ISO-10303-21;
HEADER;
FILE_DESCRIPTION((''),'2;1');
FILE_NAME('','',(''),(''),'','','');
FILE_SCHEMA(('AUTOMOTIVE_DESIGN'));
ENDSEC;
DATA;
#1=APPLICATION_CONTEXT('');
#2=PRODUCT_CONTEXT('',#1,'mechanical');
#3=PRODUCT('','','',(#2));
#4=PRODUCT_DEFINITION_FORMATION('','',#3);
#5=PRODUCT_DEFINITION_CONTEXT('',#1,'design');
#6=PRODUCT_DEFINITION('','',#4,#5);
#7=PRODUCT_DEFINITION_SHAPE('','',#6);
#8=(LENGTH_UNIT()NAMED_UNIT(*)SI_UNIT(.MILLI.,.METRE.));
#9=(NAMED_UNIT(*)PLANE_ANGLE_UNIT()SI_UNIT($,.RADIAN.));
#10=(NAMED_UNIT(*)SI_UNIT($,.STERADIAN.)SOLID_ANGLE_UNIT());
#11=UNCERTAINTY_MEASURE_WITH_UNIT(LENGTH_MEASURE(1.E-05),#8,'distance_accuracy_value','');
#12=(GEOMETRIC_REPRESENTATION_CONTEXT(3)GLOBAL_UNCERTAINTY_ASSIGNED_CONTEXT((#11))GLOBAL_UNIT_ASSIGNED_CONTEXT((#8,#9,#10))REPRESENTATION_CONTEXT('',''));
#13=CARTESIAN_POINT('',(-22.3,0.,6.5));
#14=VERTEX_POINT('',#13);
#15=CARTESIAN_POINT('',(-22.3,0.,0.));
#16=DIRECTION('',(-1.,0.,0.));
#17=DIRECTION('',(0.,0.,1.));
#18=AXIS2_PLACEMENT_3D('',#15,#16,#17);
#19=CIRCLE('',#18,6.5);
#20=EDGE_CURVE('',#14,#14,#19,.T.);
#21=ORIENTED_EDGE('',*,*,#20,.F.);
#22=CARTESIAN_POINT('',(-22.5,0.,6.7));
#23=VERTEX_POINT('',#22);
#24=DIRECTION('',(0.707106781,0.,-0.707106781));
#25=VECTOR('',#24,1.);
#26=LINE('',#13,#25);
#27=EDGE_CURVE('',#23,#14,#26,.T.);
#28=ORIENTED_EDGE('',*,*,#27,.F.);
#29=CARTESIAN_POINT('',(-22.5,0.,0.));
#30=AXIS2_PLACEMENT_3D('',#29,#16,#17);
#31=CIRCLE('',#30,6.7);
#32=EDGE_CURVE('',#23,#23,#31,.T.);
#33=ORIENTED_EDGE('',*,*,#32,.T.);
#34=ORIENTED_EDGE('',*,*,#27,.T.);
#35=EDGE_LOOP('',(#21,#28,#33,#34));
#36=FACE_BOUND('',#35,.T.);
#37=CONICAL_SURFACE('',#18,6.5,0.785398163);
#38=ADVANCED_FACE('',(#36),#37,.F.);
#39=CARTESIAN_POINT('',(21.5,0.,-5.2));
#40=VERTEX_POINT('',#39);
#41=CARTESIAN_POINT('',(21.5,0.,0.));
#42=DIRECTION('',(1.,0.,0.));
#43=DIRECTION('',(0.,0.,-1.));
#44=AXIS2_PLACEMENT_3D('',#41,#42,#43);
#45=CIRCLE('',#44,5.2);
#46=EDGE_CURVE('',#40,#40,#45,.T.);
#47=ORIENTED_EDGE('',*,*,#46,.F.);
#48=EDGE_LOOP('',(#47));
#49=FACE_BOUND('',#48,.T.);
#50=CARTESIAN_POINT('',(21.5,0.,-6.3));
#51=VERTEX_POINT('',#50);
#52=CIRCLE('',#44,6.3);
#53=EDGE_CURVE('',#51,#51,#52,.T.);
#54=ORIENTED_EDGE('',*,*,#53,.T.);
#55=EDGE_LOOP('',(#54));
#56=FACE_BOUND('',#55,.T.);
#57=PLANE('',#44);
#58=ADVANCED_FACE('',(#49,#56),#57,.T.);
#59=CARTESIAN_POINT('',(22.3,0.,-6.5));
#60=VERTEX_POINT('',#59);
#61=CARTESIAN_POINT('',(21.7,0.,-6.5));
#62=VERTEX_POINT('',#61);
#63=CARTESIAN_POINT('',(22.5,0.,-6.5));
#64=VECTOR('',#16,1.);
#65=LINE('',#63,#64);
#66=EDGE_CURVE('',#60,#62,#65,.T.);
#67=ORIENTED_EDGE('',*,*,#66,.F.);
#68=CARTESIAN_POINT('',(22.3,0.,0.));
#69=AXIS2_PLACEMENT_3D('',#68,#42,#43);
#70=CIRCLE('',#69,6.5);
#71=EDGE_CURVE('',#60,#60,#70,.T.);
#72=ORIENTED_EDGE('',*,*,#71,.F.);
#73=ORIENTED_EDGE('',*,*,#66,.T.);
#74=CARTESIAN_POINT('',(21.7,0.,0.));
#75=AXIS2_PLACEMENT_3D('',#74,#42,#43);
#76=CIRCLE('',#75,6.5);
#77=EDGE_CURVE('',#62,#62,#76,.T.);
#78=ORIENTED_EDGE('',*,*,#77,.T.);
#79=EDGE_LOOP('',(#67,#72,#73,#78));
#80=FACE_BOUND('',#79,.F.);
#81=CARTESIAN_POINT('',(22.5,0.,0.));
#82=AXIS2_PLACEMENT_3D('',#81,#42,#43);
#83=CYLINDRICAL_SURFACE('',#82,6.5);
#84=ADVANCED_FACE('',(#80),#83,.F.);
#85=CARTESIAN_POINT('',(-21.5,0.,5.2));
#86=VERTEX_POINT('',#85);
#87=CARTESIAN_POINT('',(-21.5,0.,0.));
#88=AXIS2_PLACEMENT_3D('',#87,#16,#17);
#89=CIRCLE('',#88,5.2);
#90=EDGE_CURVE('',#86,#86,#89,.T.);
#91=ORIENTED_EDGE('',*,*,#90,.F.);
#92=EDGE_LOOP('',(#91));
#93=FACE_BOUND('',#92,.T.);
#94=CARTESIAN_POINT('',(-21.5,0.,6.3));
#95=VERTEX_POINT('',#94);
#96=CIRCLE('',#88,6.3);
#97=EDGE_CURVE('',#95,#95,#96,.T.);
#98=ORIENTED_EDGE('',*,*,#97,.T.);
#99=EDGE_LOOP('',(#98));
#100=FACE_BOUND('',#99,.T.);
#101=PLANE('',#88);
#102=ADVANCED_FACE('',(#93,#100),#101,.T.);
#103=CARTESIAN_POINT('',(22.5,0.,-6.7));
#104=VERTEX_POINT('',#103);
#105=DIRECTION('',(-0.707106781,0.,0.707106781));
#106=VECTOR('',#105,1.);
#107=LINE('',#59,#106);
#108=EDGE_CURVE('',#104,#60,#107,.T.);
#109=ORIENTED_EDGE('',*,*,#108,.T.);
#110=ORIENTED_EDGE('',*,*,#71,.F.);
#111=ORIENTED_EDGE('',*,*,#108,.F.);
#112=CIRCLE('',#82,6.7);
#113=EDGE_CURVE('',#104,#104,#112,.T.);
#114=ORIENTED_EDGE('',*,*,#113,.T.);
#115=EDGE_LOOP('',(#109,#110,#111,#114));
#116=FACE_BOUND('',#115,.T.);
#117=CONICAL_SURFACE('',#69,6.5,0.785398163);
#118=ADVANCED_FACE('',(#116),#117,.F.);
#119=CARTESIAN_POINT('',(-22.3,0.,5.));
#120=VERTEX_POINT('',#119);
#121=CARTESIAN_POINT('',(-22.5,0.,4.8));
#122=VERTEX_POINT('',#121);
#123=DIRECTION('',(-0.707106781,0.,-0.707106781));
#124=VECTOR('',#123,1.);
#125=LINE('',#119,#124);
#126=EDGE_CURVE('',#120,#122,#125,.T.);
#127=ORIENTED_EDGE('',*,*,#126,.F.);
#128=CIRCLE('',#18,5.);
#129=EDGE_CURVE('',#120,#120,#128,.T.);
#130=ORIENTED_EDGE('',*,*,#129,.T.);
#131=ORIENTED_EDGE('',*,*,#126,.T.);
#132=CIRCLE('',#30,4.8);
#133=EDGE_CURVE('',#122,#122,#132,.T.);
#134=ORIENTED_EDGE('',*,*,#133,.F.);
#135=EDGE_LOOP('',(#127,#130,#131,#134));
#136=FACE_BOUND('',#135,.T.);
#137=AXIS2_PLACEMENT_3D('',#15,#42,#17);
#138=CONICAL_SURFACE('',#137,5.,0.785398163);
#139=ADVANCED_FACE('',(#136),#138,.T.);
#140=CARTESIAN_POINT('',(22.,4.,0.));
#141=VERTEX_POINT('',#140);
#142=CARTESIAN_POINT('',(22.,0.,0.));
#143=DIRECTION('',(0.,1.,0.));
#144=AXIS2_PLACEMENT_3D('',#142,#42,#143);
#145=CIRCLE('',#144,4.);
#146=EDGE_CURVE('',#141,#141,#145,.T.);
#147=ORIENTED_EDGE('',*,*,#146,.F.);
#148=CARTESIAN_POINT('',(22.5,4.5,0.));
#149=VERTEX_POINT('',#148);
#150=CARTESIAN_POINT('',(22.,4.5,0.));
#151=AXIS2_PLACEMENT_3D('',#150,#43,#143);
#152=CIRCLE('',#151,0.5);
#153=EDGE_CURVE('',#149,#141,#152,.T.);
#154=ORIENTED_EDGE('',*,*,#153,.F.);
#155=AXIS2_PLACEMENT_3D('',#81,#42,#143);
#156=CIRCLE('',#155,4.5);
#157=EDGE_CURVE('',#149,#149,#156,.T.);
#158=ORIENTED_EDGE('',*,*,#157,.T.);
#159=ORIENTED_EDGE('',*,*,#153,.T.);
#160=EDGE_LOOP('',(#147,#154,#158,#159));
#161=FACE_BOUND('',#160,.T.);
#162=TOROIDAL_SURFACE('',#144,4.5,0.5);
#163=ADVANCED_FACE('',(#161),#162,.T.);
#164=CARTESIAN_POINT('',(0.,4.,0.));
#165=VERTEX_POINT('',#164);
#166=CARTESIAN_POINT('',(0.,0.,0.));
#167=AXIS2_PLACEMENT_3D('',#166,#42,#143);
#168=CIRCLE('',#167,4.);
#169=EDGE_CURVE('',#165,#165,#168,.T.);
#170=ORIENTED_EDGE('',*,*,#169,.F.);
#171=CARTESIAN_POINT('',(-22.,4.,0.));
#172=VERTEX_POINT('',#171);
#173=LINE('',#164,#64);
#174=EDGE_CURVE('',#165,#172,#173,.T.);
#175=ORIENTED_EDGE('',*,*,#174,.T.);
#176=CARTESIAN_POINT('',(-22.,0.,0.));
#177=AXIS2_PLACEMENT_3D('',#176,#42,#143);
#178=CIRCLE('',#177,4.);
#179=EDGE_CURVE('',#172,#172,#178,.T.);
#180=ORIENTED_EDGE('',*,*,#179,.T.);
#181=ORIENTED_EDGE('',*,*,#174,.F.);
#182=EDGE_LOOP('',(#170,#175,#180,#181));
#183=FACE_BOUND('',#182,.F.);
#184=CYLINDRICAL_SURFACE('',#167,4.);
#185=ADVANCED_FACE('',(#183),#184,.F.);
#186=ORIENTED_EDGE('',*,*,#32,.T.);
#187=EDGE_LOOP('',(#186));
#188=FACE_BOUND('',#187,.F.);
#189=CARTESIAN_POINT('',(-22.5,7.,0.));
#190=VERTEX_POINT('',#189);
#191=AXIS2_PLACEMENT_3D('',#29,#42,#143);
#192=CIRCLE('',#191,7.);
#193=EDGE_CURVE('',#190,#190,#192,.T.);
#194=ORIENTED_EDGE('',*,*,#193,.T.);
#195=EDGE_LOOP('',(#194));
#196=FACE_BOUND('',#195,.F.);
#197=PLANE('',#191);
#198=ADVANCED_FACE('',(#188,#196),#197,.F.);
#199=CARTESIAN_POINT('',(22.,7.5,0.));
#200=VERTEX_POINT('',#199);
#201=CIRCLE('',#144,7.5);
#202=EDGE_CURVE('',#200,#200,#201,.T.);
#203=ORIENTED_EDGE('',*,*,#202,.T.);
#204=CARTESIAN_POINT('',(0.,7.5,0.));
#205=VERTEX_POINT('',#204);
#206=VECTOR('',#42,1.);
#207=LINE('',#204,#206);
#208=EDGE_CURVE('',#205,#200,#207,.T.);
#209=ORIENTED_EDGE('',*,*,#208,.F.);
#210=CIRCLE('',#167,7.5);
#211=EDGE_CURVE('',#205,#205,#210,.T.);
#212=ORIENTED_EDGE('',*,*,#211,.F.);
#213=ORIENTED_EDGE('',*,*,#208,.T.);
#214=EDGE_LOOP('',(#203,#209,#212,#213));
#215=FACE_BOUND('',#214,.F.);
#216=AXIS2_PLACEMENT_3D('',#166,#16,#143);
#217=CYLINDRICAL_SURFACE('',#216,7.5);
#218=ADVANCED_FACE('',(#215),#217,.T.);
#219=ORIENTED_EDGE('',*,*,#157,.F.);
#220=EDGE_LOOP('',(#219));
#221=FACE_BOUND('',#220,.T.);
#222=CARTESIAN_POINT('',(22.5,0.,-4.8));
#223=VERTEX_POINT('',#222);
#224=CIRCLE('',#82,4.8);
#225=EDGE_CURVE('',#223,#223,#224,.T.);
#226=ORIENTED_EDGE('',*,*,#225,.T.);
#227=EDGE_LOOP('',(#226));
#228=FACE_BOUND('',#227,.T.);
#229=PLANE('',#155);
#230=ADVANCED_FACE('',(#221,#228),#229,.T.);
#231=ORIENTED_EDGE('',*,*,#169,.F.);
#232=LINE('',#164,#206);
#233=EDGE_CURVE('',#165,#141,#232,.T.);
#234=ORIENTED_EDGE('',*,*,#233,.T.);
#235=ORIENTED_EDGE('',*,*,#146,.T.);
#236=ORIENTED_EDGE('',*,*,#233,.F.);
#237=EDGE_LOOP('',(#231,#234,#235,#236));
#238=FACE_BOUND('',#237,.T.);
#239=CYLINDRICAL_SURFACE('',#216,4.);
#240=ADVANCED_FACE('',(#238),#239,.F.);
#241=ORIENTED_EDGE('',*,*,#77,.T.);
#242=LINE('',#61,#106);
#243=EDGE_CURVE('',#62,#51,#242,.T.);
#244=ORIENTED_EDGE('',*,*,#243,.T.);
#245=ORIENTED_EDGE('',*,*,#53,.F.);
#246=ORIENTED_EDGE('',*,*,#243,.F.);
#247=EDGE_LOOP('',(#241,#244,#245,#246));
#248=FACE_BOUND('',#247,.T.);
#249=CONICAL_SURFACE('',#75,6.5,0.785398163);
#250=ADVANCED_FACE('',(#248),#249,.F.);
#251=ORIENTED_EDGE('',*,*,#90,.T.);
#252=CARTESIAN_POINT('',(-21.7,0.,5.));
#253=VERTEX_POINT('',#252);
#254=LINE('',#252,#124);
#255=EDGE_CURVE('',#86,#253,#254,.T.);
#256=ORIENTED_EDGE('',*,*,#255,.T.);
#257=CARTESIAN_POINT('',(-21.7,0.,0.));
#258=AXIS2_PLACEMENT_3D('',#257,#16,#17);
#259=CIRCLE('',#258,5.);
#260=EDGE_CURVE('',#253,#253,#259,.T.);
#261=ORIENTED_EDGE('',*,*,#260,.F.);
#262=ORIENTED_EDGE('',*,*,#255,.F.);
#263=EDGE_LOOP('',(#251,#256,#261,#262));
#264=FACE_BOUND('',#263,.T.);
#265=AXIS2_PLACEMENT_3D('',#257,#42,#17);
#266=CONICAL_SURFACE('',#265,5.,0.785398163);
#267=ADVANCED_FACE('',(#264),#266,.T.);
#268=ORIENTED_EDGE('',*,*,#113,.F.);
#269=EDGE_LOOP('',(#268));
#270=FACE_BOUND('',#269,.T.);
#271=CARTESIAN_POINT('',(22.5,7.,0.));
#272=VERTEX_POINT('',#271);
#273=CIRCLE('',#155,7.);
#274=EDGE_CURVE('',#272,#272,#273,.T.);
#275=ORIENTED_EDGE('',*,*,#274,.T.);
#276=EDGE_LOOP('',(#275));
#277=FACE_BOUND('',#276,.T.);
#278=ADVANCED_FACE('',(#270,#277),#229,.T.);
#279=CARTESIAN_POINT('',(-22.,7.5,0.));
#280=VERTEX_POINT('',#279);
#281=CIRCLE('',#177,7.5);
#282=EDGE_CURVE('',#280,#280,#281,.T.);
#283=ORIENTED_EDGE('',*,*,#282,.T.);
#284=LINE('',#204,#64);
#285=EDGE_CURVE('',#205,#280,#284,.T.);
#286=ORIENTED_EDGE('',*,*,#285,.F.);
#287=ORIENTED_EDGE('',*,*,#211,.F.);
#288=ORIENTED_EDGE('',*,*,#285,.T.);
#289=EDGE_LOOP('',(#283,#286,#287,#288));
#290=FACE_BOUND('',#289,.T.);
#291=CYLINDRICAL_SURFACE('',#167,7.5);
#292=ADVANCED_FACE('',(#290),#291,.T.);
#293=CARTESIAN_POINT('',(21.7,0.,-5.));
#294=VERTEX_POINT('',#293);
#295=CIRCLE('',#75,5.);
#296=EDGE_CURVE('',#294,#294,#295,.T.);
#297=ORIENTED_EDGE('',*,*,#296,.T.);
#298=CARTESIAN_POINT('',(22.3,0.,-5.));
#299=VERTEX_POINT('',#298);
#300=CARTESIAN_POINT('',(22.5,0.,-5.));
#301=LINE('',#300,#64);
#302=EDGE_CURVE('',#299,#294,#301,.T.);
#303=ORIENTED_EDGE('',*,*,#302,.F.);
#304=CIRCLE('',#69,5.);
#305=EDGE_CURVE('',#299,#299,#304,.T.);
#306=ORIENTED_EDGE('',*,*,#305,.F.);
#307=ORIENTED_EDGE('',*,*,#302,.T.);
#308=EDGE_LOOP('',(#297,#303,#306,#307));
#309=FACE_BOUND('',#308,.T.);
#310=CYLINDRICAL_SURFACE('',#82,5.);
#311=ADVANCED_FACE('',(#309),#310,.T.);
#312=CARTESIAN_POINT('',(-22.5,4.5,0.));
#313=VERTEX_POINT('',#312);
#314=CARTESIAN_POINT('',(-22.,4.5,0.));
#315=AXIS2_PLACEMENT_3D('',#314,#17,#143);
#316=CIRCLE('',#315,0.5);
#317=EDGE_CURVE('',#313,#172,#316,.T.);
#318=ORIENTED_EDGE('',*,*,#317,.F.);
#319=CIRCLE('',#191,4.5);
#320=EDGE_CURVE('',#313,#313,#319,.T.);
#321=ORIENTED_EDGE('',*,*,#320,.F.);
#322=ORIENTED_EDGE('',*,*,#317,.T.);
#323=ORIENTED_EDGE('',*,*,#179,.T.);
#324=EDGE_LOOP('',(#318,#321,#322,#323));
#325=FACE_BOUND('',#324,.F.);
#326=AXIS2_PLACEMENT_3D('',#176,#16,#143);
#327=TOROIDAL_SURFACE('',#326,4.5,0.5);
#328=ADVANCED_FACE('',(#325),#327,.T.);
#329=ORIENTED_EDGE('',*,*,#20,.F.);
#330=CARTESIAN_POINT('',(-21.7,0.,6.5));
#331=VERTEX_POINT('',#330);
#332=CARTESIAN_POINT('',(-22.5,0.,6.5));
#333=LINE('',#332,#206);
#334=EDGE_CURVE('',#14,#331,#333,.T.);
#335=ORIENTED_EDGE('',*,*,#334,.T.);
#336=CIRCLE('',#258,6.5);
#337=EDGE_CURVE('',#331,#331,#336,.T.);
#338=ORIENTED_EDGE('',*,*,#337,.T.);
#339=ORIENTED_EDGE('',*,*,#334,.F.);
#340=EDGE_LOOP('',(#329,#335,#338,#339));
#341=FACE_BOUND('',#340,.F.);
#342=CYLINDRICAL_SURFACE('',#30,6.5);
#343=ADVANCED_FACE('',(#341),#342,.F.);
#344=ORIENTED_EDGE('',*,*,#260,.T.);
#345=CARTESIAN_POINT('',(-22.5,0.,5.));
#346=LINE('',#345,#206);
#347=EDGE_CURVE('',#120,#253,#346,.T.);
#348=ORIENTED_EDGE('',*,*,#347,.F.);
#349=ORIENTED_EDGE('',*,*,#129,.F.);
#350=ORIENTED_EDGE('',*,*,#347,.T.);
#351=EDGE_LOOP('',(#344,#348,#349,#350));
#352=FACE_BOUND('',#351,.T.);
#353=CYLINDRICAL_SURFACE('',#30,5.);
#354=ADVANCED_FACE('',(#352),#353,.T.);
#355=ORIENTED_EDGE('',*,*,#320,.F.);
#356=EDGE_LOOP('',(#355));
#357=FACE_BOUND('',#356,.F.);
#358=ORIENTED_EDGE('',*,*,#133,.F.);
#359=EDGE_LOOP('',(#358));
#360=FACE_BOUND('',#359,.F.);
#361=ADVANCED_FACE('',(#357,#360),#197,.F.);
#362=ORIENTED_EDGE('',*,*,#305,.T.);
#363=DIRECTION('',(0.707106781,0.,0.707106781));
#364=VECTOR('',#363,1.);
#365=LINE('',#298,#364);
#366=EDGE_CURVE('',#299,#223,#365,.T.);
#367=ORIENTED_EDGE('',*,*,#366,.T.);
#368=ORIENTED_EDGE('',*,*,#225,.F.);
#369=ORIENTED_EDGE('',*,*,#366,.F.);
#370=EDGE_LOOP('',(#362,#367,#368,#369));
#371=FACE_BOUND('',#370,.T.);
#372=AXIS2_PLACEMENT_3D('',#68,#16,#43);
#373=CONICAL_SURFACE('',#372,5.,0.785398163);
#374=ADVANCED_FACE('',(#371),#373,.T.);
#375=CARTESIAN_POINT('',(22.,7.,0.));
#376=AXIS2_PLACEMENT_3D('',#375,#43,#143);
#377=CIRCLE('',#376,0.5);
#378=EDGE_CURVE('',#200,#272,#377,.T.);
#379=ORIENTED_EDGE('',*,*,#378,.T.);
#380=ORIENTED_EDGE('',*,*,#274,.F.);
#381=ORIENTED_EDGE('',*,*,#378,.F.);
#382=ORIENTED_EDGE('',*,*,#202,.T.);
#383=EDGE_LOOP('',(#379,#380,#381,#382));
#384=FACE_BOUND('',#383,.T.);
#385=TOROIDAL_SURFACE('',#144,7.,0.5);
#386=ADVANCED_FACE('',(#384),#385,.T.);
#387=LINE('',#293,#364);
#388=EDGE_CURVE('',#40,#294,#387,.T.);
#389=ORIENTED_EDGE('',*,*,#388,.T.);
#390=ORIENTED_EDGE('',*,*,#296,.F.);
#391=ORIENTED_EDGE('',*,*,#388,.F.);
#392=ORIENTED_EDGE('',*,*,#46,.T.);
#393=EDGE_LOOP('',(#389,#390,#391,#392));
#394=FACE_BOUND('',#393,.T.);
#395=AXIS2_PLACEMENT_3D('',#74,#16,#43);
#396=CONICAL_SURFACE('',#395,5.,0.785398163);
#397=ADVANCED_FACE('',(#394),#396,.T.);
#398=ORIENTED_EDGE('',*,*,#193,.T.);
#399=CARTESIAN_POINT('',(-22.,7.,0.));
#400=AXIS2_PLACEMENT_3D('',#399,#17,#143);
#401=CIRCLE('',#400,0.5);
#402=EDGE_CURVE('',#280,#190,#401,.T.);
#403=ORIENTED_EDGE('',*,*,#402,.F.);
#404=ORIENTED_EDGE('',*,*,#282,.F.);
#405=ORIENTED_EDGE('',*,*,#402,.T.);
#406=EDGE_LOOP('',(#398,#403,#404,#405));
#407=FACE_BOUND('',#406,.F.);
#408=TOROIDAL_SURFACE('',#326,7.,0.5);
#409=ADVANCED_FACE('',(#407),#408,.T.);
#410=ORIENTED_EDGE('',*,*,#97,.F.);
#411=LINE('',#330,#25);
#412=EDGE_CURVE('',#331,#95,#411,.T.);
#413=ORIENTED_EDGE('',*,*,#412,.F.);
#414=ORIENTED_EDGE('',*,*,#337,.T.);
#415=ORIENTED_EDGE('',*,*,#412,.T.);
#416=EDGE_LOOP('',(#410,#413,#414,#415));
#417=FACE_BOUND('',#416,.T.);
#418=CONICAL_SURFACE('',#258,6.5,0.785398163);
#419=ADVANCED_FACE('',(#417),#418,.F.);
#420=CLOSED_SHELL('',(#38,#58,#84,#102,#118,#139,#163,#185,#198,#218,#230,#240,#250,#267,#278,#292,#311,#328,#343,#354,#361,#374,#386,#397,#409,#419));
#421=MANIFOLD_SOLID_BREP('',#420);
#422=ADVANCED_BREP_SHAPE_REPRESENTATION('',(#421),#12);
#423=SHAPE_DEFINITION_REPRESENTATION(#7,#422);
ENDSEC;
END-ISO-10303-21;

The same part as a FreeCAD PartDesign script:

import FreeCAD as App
import Part
import Sketcher


def edges_at(feature, points):
    """Names of the edges that pass closest to the given points."""
    edges = feature.Shape.Edges
    near = lambda p: min(range(len(edges)), key=lambda i: edges[i].distToShape(Part.Vertex(*p))[0])
    return sorted({f"Edge{near(p) + 1}" for p in points})

doc = App.newDocument("Part")
params = doc.addObject("Spreadsheet::Sheet", "Params")
for row, (alias, value) in enumerate([
    ("sketch1_diameter", "15 mm"),
    ("sketch1_diameter2", "8 mm"),
    ("pad1_length", "45 mm"),
    ("sketch2_diameter", "13 mm"),
    ("sketch2_diameter2", "10 mm"),
    ("pocket1_length", "1 mm"),
    ("sketch3_diameter", "13 mm"),
    ("sketch3_diameter2", "10 mm"),
    ("pocket2_length", "1 mm"),
    ("fillet_radius", "0.5 mm"),
    ("fillet2_radius", "0.5 mm"),
    ("chamfer_size", "0.2 mm"),
], start=1):
    params.set(f"A{row}", alias)
    params.set(f"B{row}", "=" + value)
    params.setAlias(f"B{row}", alias)

body = doc.addObject("PartDesign::Body", "Body")

# Sketch on YZ plane
sketch1 = doc.addObject("Sketcher::SketchObject", "Sketch")
body.addObject(sketch1)
sketch1.AttachmentSupport = (doc.YZ_Plane, [""])
sketch1.MapMode = "FlatFace"
sketch1.addGeometry(Part.Circle(App.Vector(0, 0, 0), App.Vector(0, 0, 1), 7.5), False)
sketch1.addGeometry(Part.Circle(App.Vector(0, 0, 0), App.Vector(0, 0, 1), 4), False)
sketch1.addConstraint(Sketcher.Constraint("Coincident", 0, 3, -1, 1))
sketch1.addConstraint(Sketcher.Constraint("Coincident", 1, 3, -1, 1))
sketch1.addConstraint(Sketcher.Constraint("Diameter", 0, 15.0))
sketch1.addConstraint(Sketcher.Constraint("Diameter", 1, 8.0))
sketch1.setExpression("Constraints[2]", "Params.sketch1_diameter")
sketch1.setExpression("Constraints[3]", "Params.sketch1_diameter2")
pad1 = doc.addObject("PartDesign::Pad", "Pad")
body.addObject(pad1)
pad1.Profile = sketch1
pad1.setExpression("Length", "Params.pad1_length")
pad1.Midplane = True

# Sketch on YZ plane
sketch2 = doc.addObject("Sketcher::SketchObject", "Sketch001")
body.addObject(sketch2)
sketch2.AttachmentSupport = (doc.YZ_Plane, [""])
sketch2.MapMode = "FlatFace"
sketch2.AttachmentOffset = App.Placement(App.Vector(0, 0, 22.5), App.Rotation())
sketch2.addGeometry(Part.Circle(App.Vector(0, 0, 0), App.Vector(0, 0, 1), 6), False)
sketch2.addGeometry(Part.Circle(App.Vector(0, 0, 0), App.Vector(0, 0, 1), 5), False)
sketch2.addConstraint(Sketcher.Constraint("Coincident", 0, 3, -1, 1))
sketch2.addConstraint(Sketcher.Constraint("Coincident", 1, 3, -1, 1))
sketch2.addConstraint(Sketcher.Constraint("Diameter", 0, 13.0))
sketch2.addConstraint(Sketcher.Constraint("Diameter", 1, 10.0))
sketch2.setExpression("Constraints[2]", "Params.sketch2_diameter")
sketch2.setExpression("Constraints[3]", "Params.sketch2_diameter2")
pocket1 = doc.addObject("PartDesign::Pocket", "Pocket")
body.addObject(pocket1)
pocket1.Profile = sketch2
pocket1.setExpression("Length", "Params.pocket1_length")

# Sketch on YZ plane
sketch3 = doc.addObject("Sketcher::SketchObject", "Sketch002")
body.addObject(sketch3)
sketch3.AttachmentSupport = (doc.YZ_Plane, [""])
sketch3.MapMode = "FlatFace"
sketch3.AttachmentOffset = App.Placement(App.Vector(0, 0, -22.5), App.Rotation())
sketch3.addGeometry(Part.Circle(App.Vector(0, 0, 0), App.Vector(0, 0, 1), 6), False)
sketch3.addGeometry(Part.Circle(App.Vector(0, 0, 0), App.Vector(0, 0, 1), 5), False)
sketch3.addConstraint(Sketcher.Constraint("Coincident", 0, 3, -1, 1))
sketch3.addConstraint(Sketcher.Constraint("Coincident", 1, 3, -1, 1))
sketch3.addConstraint(Sketcher.Constraint("Diameter", 0, 13.0))
sketch3.addConstraint(Sketcher.Constraint("Diameter", 1, 10.0))
sketch3.setExpression("Constraints[2]", "Params.sketch3_diameter")
sketch3.setExpression("Constraints[3]", "Params.sketch3_diameter2")
pocket2 = doc.addObject("PartDesign::Pocket", "Pocket001")
body.addObject(pocket2)
pocket2.Profile = sketch3
pocket2.setExpression("Length", "Params.pocket2_length")
pocket2.Reversed = True
doc.recompute()

fillet = doc.addObject("PartDesign::Fillet", "Fillet")
body.addObject(fillet)
fillet.Base = (pocket2, edges_at(pocket2, [(-22.5, -7.5, 0)]))
fillet.setExpression("Radius", "Params.fillet_radius")
doc.recompute()

fillet2 = doc.addObject("PartDesign::Fillet", "Fillet001")
body.addObject(fillet2)
fillet2.Base = (fillet, edges_at(fillet, [(-22.5, -4, 0), (22.5, -7.5, 0), (22.5, -4, 0)]))
fillet2.setExpression("Radius", "Params.fillet2_radius")
doc.recompute()

chamfer = doc.addObject("PartDesign::Chamfer", "Chamfer")
body.addObject(chamfer)
chamfer.Base = (fillet2, edges_at(fillet2, [
    (22.5, 0, 5),
    (22.5, 0, 6.5),
    (-22.5, 0, -5),
    (-22.5, 0, -6.5),
    (-21.5, 0, -5),
    (-21.5, 0, -6.5),
    (21.5, 0, 6.5),
    (21.5, 0, 5),
]))
chamfer.setExpression("Size", "Params.chamfer_size")

doc.recompute()
